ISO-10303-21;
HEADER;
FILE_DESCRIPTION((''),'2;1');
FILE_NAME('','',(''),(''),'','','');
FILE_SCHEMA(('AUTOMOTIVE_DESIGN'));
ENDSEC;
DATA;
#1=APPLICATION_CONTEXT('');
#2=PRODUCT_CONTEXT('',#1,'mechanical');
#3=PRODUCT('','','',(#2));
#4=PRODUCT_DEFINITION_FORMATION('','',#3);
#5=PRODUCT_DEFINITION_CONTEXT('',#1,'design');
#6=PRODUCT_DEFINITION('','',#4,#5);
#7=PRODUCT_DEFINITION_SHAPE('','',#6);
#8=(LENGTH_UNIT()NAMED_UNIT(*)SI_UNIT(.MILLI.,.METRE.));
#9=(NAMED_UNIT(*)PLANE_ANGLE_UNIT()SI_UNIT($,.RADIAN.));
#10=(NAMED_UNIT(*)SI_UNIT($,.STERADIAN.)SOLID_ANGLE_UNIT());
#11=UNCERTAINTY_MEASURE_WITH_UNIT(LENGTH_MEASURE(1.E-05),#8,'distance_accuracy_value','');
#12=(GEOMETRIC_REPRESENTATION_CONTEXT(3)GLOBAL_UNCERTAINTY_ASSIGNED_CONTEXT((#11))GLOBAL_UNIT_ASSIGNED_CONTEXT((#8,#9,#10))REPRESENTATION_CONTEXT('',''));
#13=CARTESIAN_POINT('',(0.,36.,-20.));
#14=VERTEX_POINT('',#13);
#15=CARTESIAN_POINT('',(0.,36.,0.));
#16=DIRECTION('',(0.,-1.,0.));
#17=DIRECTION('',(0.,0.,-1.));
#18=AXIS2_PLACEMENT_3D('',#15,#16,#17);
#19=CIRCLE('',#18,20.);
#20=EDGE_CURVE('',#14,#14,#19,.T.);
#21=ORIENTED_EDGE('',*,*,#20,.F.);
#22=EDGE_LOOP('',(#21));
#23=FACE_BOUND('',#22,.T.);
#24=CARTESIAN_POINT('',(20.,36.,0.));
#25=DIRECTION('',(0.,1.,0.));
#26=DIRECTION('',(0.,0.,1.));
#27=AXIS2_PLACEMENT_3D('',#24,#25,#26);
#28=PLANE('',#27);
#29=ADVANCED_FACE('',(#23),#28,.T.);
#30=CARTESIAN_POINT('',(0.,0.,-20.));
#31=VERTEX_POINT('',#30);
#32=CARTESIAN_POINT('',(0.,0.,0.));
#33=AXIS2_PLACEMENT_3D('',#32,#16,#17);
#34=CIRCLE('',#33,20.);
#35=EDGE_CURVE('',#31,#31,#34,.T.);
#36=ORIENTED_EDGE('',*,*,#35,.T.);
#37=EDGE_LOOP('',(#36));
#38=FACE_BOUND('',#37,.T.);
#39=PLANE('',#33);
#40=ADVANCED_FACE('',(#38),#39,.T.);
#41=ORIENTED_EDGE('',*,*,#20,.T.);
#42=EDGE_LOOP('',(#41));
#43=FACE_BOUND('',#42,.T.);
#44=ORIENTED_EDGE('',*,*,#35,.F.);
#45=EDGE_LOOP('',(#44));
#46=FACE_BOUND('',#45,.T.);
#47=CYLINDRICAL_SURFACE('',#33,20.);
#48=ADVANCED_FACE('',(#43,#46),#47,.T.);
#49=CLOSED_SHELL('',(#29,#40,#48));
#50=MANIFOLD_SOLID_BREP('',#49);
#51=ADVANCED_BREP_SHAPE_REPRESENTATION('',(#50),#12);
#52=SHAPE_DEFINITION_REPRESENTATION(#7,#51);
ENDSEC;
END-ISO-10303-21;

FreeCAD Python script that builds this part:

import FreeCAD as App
import Part
import Sketcher
from FreeCAD import Vector

doc = App.newDocument("Part")
body = doc.addObject("PartDesign::Body", "Body")

sketch1 = body.newObject("Sketcher::SketchObject", "Sketch")
sketch1.AttachmentSupport = (doc.getObject("XY_Plane"), [""])
sketch1.MapMode = "FlatFace"
sketch1.addGeometry(Part.LineSegment(Vector(0, 36, 0), Vector(0, 0, 0)), False)
sketch1.addGeometry(Part.LineSegment(Vector(0, 0, 0), Vector(20, 0, 0)), False)
sketch1.addGeometry(Part.LineSegment(Vector(20, 0, 0), Vector(20, 36, 0)), False)
sketch1.addGeometry(Part.LineSegment(Vector(20, 36, 0), Vector(0, 36, 0)), False)
sketch1.addConstraint(Sketcher.Constraint("Coincident", 0, 2, 1, 1))
sketch1.addConstraint(Sketcher.Constraint("Coincident", 1, 2, 2, 1))
sketch1.addConstraint(Sketcher.Constraint("Coincident", 2, 2, 3, 1))
sketch1.addConstraint(Sketcher.Constraint("Coincident", 3, 2, 0, 1))
sketch1.addConstraint(Sketcher.Constraint("Vertical", 0))
sketch1.addConstraint(Sketcher.Constraint("Horizontal", 1))
sketch1.addConstraint(Sketcher.Constraint("Vertical", 2))
sketch1.addConstraint(Sketcher.Constraint("Horizontal", 3))
sketch1.addConstraint(Sketcher.Constraint("Coincident", 0, 2, -1, 1))
sketch1.addConstraint(Sketcher.Constraint("DistanceX", 1, 1, 1, 2, 20.0))
sketch1.addConstraint(Sketcher.Constraint("DistanceY", 0, 2, 0, 1, 36.0))
revolution = body.newObject("PartDesign::Revolution", "Revolution")
revolution.Profile = sketch1
revolution.ReferenceAxis = (sketch1, ["V_Axis"])
revolution.Angle = 360

doc.recompute()
